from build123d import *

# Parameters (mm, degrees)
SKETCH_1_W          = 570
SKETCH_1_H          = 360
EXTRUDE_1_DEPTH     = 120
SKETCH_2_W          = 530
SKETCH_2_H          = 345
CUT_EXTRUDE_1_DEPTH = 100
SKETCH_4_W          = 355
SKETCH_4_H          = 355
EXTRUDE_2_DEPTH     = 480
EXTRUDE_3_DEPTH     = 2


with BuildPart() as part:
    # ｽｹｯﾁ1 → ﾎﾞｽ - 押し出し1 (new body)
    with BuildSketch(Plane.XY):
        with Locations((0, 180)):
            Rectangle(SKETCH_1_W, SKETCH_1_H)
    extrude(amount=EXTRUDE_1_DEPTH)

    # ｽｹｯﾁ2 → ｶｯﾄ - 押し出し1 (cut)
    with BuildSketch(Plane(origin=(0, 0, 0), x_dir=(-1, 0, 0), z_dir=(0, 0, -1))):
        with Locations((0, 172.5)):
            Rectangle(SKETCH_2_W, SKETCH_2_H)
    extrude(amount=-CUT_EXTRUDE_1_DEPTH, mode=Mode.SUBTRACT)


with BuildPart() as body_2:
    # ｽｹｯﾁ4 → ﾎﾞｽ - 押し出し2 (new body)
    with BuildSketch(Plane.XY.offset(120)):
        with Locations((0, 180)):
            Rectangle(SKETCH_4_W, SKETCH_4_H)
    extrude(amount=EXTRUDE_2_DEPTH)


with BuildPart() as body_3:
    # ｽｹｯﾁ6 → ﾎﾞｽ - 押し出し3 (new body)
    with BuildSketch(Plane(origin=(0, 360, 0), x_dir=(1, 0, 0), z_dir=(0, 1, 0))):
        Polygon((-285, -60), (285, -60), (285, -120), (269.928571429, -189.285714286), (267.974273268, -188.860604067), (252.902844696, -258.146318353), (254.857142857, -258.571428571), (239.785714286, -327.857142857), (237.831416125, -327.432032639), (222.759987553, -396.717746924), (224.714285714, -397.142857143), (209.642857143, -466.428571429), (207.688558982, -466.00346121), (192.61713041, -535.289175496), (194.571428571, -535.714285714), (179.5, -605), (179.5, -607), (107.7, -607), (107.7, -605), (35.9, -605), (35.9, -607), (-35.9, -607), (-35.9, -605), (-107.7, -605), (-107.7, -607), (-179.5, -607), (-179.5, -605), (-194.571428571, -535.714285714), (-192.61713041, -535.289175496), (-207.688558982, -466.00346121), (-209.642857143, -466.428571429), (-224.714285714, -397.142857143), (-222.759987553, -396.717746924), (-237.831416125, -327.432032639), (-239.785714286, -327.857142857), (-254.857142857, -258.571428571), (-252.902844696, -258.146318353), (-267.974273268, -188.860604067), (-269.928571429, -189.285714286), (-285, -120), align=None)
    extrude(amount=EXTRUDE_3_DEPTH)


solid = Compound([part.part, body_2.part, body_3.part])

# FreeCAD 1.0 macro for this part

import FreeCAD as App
import Part
import Sketcher

V = App.Vector
Q = App.Units.Quantity


def add_polygon(sketch, points):
    """Adds a closed chain of lines whose ends are joined by coincident constraints."""
    first, n = sketch.GeometryCount, len(points)
    for a, b in zip(points, points[1:] + points[:1]):
        sketch.addGeometry(Part.LineSegment(App.Vector(*a, 0), App.Vector(*b, 0)), False)
    for i in range(n):
        sketch.addConstraint(Sketcher.Constraint("Coincident", first + i, 2, first + (i + 1) % n, 1))

doc = App.newDocument("Part")
body = doc.addObject("PartDesign::Body", "Body")

# Sketch on XY plane
sketch1 = body.newObject("Sketcher::SketchObject", "Sketch")
sketch1.AttachmentSupport = (doc.getObject("XY_Plane"), [""])
sketch1.MapMode = "FlatFace"
add_polygon(sketch1, [(-285, 360), (-285, 0), (285, 0), (285, 360)])  # lines 0-3
sketch1.addConstraint([
    Sketcher.Constraint("Vertical", 0),
    Sketcher.Constraint("Horizontal", 1),
    Sketcher.Constraint("Vertical", 2),
    Sketcher.Constraint("Horizontal", 3),
    Sketcher.Constraint("Symmetric", 0, 2, 1, 2, -1, 1),
    Sketcher.Constraint("DistanceX", 1, 1, 1, 2, Q("570 mm")),
    Sketcher.Constraint("DistanceY", 0, 2, 0, 1, Q("360 mm")),
])
pad1 = body.newObject("PartDesign::Pad", "Pad")
pad1.Profile = sketch1
pad1.Length = 120

# Sketch on XY plane
sketch2 = body.newObject("Sketcher::SketchObject", "Sketch001")
sketch2.AttachmentSupport = (doc.getObject("XY_Plane"), [""])
sketch2.MapMode = "FlatFace"
add_polygon(sketch2, [(265, 345), (265, 0), (-265, 0), (-265, 345)])  # lines 0-3
sketch2.addConstraint([
    Sketcher.Constraint("Vertical", 0),
    Sketcher.Constraint("Horizontal", 1),
    Sketcher.Constraint("Vertical", 2),
    Sketcher.Constraint("Horizontal", 3),
    Sketcher.Constraint("Symmetric", 0, 2, 1, 2, -1, 1),
    Sketcher.Constraint("DistanceX", 1, 2, 1, 1, Q("530 mm")),
    Sketcher.Constraint("DistanceY", 0, 2, 0, 1, Q("345 mm")),
])
pocket1 = body.newObject("PartDesign::Pocket", "Pocket")
pocket1.Profile = sketch2
pocket1.Length = 100
pocket1.Reversed = True
body2 = doc.addObject("PartDesign::Body", "Body001")

# Sketch on XY plane
sketch3 = body2.newObject("Sketcher::SketchObject", "Sketch002")
sketch3.AttachmentSupport = (doc.getObject("XY_Plane001"), [""])
sketch3.MapMode = "FlatFace"
sketch3.AttachmentOffset = App.Placement(V(0, 0, 120), App.Rotation())
add_polygon(sketch3, [(-178, 358), (-178, 2), (178, 2), (178, 358)])  # lines 0-3
sketch3.addConstraint([
    Sketcher.Constraint("Vertical", 0),
    Sketcher.Constraint("Horizontal", 1),
    Sketcher.Constraint("Vertical", 2),
    Sketcher.Constraint("Horizontal", 3),
    Sketcher.Constraint("Equal", 3, 0),
    Sketcher.Constraint("DistanceX", 1, 1, 1, 2, Q("355 mm")),
    Sketcher.Constraint("DistanceX", 0, 2, -1, 1, Q("177.5 mm")),
    Sketcher.Constraint("DistanceY", -1, 1, 0, 2, Q("2.5 mm")),
])
pad2 = body2.newObject("PartDesign::Pad", "Pad001")
pad2.Profile = sketch3
pad2.Length = 480
body3 = doc.addObject("PartDesign::Body", "Body002")

# Sketch on XZ plane
sketch4 = body3.newObject("Sketcher::SketchObject", "Sketch003")
sketch4.AttachmentSupport = (doc.getObject("XZ_Plane002"), [""])
sketch4.MapMode = "FlatFace"
sketch4.AttachmentOffset = App.Placement(V(0, 0, -360), App.Rotation())
add_polygon(sketch4, [(285, 60), (-285, 60), (-285, 120), (-269.9, 189.3), (-268, 188.9), (-252.9, 258.1), (-254.9, 258.6), (-239.8, 327.9), (-237.8, 327.4), (-222.8, 396.7), (-224.7, 397.1), (-209.6, 466.4), (-207.7, 466), (-192.6, 535.3), (-194.6, 535.7), (-179.5, 605), (-179.5, 607), (-107.7, 607), (-107.7, 605), (-35.9, 605), (-35.9, 607), (35.9, 607), (35.9, 605), (107.7, 605), (107.7, 607), (179.5, 607), (179.5, 605), (194.6, 535.7), (192.6, 535.3), (207.7, 466), (209.6, 466.4), (224.7, 397.1), (222.8, 396.7), (237.8, 327.4), (239.8, 327.9), (254.9, 258.6), (252.9, 258.1), (268, 188.9), (269.9, 189.3), (285, 120)])  # lines 0-39
sketch4.addConstraint([
    Sketcher.Constraint("Horizontal", 0),
    Sketcher.Constraint("Vertical", 1),
    Sketcher.Constraint("Vertical", 15),
    Sketcher.Constraint("Horizontal", 16),
    Sketcher.Constraint("Vertical", 17),
    Sketcher.Constraint("Horizontal", 18),
    Sketcher.Constraint("Vertical", 19),
    Sketcher.Constraint("Horizontal", 20),
    Sketcher.Constraint("Vertical", 21),
    Sketcher.Constraint("Horizontal", 22),
    Sketcher.Constraint("Vertical", 23),
    Sketcher.Constraint("Horizontal", 24),
    Sketcher.Constraint("Vertical", 25),
    Sketcher.Constraint("Vertical", 39),
    Sketcher.Constraint("Symmetric", 18, 2, 21, 2, -2),
    Sketcher.Constraint("Symmetric", 16, 2, 23, 2, -2),
    Sketcher.Constraint("Symmetric", 14, 2, 25, 2, -2),
    Sketcher.Constraint("Symmetric", 13, 2, 26, 2, -2),
    Sketcher.Constraint("Symmetric", 12, 2, 27, 2, -2),
    Sketcher.Constraint("Symmetric", 11, 2, 28, 2, -2),
    Sketcher.Constraint("Symmetric", 10, 2, 29, 2, -2),
    Sketcher.Constraint("Symmetric", 9, 2, 30, 2, -2),
    Sketcher.Constraint("Symmetric", 8, 2, 31, 2, -2),
    Sketcher.Constraint("Symmetric", 7, 2, 32, 2, -2),
    Sketcher.Constraint("Symmetric", 6, 2, 33, 2, -2),
    Sketcher.Constraint("Symmetric", 5, 2, 34, 2, -2),
    Sketcher.Constraint("Symmetric", 4, 2, 35, 2, -2),
    Sketcher.Constraint("Symmetric", 3, 2, 36, 2, -2),
    Sketcher.Constraint("Symmetric", 2, 2, 37, 2, -2),
    Sketcher.Constraint("Symmetric", 1, 2, 38, 2, -2),
    Sketcher.Constraint("Perpendicular", 2, 3),
    Sketcher.Constraint("Perpendicular", 3, 4),
    Sketcher.Constraint("Perpendicular", 4, 5),
    Sketcher.Constraint("Perpendicular", 5, 6),
    Sketcher.Constraint("Perpendicular", 6, 7),
    Sketcher.Constraint("Perpendicular", 7, 8),
    Sketcher.Constraint("Perpendicular", 8, 9),
    Sketcher.Constraint("Perpendicular", 9, 10),
    Sketcher.Constraint("Perpendicular", 10, 11),
    Sketcher.Constraint("Perpendicular", 11, 12),
    Sketcher.Constraint("Perpendicular", 12, 13),
    Sketcher.Constraint("Perpendicular", 13, 14),
    Sketcher.Constraint("Horizontal", 14, 2, 17, 2),
    Sketcher.Constraint("Horizontal", 16, 2, 19, 2),
    Sketcher.Constraint("Equal", 16, 18),
    Sketcher.Constraint("Equal", 18, 20),
    Sketcher.Constraint("Equal", 2, 4),
    Sketcher.Constraint("Equal", 3, 5),
    Sketcher.Constraint("Equal", 4, 6),
    Sketcher.Constraint("Equal", 5, 7),
    Sketcher.Constraint("Equal", 6, 8),
    Sketcher.Constraint("Equal", 7, 9),
    Sketcher.Constraint("Equal", 8, 10),
    Sketcher.Constraint("Equal", 9, 11),
    Sketcher.Constraint("Equal", 10, 12),
    Sketcher.Constraint("Equal", 11, 13),
    Sketcher.Constraint("Equal", 12, 14),
    Sketcher.Constraint("DistanceX", 0, 2, 0, 1, Q("570 mm")),
    Sketcher.Constraint("DistanceY", 1, 1, 1, 2, Q("60 mm")),
    Sketcher.Constraint("DistanceY", 15, 1, 15, 2, Q("2 mm")),
    Sketcher.Constraint("Distance", 3, Q("2 mm")),
    Sketcher.Constraint("DistanceX", 16, 1, 16, 2, Q("71.8 mm")),
    Sketcher.Constraint("DistanceY", -1, 1, 0, 2, Q("60 mm")),
    Sketcher.Constraint("DistanceY", -1, 1, 14, 2, Q("605 mm")),
])
pad3 = body3.newObject("PartDesign::Pad", "Pad002")
pad3.Profile = sketch4
pad3.Length = 2
pad3.Reversed = True

doc.recompute()
